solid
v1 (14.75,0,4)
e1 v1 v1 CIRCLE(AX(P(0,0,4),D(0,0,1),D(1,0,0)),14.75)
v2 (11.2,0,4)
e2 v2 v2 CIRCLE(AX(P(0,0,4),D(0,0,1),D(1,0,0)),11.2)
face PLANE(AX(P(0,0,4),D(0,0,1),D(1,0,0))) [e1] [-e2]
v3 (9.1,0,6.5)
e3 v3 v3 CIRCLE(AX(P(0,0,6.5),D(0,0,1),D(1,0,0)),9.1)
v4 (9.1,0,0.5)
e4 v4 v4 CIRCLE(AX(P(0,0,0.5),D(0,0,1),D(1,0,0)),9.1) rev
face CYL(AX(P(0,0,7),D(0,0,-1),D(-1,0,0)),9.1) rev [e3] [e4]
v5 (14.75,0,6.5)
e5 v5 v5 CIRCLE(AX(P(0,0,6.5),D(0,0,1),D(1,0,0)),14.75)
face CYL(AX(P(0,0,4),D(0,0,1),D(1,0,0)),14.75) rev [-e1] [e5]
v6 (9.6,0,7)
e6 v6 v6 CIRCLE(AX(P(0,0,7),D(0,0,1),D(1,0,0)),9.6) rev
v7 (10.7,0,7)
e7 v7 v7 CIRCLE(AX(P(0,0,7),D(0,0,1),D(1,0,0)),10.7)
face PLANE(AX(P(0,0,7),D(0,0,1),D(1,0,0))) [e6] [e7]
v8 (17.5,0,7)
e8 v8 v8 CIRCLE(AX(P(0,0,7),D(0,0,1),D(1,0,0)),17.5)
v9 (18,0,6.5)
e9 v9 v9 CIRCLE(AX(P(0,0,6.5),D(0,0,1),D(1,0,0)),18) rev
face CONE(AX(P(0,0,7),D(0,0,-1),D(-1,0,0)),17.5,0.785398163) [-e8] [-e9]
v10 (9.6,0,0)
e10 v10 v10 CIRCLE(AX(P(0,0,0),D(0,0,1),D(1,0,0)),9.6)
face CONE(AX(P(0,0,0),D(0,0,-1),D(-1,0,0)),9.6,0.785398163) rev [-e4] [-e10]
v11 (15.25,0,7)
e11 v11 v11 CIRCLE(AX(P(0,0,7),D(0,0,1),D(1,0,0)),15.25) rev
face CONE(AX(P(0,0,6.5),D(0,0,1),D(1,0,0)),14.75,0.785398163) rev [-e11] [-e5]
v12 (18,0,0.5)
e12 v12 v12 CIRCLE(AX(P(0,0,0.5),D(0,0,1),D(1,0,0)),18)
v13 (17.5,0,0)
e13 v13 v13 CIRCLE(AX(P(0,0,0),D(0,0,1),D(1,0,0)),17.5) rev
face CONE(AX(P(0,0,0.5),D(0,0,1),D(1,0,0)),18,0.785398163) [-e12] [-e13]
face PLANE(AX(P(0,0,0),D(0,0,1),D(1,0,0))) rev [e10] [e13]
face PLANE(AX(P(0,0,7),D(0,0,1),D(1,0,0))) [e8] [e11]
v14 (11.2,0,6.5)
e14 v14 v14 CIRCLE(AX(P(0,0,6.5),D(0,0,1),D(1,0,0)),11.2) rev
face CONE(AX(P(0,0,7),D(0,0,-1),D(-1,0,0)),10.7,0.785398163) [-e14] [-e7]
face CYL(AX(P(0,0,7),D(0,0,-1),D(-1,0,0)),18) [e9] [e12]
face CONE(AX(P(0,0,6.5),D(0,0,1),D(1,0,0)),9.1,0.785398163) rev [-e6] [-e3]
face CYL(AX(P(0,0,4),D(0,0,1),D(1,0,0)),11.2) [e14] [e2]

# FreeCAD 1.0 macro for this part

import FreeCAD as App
import Part
import Sketcher


def edges_at(feature, points):
    """Names of the edges that pass closest to the given points."""
    edges = feature.Shape.Edges
    near = lambda p: min(range(len(edges)), key=lambda i: edges[i].distToShape(Part.Vertex(*p))[0])
    return sorted({f"Edge{near(p) + 1}" for p in points})

doc = App.newDocument("Part")
body = doc.addObject("PartDesign::Body", "Body")

# Sketch on XY plane
sketch1 = body.newObject("Sketcher::SketchObject", "Sketch")
sketch1.AttachmentSupport = (doc.getObject("XY_Plane"), [""])
sketch1.MapMode = "FlatFace"
sketch1.addGeometry(Part.Circle(App.Vector(0, 0, 0), App.Vector(0, 0, 1), 18), False)
sketch1.addGeometry(Part.Circle(App.Vector(0, 0, 0), App.Vector(0, 0, 1), 9), False)
sketch1.addConstraint(Sketcher.Constraint("Coincident", 0, 3, -1, 1))
sketch1.addConstraint(Sketcher.Constraint("Coincident", 1, 3, -1, 1))
sketch1.addConstraint(Sketcher.Constraint("Diameter", 0, 36.0))
sketch1.addConstraint(Sketcher.Constraint("Diameter", 1, 18.2))
pad1 = body.newObject("PartDesign::Pad", "Pad")
pad1.Profile = sketch1
pad1.Length = 7

# Sketch on XY plane
sketch2 = body.newObject("Sketcher::SketchObject", "Sketch001")
sketch2.AttachmentSupport = (doc.getObject("XY_Plane"), [""])
sketch2.MapMode = "FlatFace"
sketch2.AttachmentOffset = App.Placement(App.Vector(0, 0, 7), App.Rotation())
sketch2.addGeometry(Part.Circle(App.Vector(0, 0, 0), App.Vector(0, 0, 1), 15), False)
sketch2.addGeometry(Part.Circle(App.Vector(0, 0, 0), App.Vector(0, 0, 1), 11), False)
sketch2.addConstraint(Sketcher.Constraint("Coincident", 0, 3, -1, 1))
sketch2.addConstraint(Sketcher.Constraint("Coincident", 1, 3, -1, 1))
sketch2.addConstraint(Sketcher.Constraint("Diameter", 0, 29.5))
sketch2.addConstraint(Sketcher.Constraint("Diameter", 1, 22.4))
pocket1 = body.newObject("PartDesign::Pocket", "Pocket")
pocket1.Profile = sketch2
pocket1.Length = 3
doc.recompute()

chamfer = body.newObject("PartDesign::Chamfer", "Chamfer")
chamfer.Base = (pocket1, edges_at(pocket1, [
    (-14.75, 0, 7),
    (-11.2, 0, 7),
    (-18, 0, 0),
    (-18, 0, 7),
    (-9.1, 0, 0),
    (-9.1, 0, 7),
]))
chamfer.Size = 0.5

doc.recompute()
